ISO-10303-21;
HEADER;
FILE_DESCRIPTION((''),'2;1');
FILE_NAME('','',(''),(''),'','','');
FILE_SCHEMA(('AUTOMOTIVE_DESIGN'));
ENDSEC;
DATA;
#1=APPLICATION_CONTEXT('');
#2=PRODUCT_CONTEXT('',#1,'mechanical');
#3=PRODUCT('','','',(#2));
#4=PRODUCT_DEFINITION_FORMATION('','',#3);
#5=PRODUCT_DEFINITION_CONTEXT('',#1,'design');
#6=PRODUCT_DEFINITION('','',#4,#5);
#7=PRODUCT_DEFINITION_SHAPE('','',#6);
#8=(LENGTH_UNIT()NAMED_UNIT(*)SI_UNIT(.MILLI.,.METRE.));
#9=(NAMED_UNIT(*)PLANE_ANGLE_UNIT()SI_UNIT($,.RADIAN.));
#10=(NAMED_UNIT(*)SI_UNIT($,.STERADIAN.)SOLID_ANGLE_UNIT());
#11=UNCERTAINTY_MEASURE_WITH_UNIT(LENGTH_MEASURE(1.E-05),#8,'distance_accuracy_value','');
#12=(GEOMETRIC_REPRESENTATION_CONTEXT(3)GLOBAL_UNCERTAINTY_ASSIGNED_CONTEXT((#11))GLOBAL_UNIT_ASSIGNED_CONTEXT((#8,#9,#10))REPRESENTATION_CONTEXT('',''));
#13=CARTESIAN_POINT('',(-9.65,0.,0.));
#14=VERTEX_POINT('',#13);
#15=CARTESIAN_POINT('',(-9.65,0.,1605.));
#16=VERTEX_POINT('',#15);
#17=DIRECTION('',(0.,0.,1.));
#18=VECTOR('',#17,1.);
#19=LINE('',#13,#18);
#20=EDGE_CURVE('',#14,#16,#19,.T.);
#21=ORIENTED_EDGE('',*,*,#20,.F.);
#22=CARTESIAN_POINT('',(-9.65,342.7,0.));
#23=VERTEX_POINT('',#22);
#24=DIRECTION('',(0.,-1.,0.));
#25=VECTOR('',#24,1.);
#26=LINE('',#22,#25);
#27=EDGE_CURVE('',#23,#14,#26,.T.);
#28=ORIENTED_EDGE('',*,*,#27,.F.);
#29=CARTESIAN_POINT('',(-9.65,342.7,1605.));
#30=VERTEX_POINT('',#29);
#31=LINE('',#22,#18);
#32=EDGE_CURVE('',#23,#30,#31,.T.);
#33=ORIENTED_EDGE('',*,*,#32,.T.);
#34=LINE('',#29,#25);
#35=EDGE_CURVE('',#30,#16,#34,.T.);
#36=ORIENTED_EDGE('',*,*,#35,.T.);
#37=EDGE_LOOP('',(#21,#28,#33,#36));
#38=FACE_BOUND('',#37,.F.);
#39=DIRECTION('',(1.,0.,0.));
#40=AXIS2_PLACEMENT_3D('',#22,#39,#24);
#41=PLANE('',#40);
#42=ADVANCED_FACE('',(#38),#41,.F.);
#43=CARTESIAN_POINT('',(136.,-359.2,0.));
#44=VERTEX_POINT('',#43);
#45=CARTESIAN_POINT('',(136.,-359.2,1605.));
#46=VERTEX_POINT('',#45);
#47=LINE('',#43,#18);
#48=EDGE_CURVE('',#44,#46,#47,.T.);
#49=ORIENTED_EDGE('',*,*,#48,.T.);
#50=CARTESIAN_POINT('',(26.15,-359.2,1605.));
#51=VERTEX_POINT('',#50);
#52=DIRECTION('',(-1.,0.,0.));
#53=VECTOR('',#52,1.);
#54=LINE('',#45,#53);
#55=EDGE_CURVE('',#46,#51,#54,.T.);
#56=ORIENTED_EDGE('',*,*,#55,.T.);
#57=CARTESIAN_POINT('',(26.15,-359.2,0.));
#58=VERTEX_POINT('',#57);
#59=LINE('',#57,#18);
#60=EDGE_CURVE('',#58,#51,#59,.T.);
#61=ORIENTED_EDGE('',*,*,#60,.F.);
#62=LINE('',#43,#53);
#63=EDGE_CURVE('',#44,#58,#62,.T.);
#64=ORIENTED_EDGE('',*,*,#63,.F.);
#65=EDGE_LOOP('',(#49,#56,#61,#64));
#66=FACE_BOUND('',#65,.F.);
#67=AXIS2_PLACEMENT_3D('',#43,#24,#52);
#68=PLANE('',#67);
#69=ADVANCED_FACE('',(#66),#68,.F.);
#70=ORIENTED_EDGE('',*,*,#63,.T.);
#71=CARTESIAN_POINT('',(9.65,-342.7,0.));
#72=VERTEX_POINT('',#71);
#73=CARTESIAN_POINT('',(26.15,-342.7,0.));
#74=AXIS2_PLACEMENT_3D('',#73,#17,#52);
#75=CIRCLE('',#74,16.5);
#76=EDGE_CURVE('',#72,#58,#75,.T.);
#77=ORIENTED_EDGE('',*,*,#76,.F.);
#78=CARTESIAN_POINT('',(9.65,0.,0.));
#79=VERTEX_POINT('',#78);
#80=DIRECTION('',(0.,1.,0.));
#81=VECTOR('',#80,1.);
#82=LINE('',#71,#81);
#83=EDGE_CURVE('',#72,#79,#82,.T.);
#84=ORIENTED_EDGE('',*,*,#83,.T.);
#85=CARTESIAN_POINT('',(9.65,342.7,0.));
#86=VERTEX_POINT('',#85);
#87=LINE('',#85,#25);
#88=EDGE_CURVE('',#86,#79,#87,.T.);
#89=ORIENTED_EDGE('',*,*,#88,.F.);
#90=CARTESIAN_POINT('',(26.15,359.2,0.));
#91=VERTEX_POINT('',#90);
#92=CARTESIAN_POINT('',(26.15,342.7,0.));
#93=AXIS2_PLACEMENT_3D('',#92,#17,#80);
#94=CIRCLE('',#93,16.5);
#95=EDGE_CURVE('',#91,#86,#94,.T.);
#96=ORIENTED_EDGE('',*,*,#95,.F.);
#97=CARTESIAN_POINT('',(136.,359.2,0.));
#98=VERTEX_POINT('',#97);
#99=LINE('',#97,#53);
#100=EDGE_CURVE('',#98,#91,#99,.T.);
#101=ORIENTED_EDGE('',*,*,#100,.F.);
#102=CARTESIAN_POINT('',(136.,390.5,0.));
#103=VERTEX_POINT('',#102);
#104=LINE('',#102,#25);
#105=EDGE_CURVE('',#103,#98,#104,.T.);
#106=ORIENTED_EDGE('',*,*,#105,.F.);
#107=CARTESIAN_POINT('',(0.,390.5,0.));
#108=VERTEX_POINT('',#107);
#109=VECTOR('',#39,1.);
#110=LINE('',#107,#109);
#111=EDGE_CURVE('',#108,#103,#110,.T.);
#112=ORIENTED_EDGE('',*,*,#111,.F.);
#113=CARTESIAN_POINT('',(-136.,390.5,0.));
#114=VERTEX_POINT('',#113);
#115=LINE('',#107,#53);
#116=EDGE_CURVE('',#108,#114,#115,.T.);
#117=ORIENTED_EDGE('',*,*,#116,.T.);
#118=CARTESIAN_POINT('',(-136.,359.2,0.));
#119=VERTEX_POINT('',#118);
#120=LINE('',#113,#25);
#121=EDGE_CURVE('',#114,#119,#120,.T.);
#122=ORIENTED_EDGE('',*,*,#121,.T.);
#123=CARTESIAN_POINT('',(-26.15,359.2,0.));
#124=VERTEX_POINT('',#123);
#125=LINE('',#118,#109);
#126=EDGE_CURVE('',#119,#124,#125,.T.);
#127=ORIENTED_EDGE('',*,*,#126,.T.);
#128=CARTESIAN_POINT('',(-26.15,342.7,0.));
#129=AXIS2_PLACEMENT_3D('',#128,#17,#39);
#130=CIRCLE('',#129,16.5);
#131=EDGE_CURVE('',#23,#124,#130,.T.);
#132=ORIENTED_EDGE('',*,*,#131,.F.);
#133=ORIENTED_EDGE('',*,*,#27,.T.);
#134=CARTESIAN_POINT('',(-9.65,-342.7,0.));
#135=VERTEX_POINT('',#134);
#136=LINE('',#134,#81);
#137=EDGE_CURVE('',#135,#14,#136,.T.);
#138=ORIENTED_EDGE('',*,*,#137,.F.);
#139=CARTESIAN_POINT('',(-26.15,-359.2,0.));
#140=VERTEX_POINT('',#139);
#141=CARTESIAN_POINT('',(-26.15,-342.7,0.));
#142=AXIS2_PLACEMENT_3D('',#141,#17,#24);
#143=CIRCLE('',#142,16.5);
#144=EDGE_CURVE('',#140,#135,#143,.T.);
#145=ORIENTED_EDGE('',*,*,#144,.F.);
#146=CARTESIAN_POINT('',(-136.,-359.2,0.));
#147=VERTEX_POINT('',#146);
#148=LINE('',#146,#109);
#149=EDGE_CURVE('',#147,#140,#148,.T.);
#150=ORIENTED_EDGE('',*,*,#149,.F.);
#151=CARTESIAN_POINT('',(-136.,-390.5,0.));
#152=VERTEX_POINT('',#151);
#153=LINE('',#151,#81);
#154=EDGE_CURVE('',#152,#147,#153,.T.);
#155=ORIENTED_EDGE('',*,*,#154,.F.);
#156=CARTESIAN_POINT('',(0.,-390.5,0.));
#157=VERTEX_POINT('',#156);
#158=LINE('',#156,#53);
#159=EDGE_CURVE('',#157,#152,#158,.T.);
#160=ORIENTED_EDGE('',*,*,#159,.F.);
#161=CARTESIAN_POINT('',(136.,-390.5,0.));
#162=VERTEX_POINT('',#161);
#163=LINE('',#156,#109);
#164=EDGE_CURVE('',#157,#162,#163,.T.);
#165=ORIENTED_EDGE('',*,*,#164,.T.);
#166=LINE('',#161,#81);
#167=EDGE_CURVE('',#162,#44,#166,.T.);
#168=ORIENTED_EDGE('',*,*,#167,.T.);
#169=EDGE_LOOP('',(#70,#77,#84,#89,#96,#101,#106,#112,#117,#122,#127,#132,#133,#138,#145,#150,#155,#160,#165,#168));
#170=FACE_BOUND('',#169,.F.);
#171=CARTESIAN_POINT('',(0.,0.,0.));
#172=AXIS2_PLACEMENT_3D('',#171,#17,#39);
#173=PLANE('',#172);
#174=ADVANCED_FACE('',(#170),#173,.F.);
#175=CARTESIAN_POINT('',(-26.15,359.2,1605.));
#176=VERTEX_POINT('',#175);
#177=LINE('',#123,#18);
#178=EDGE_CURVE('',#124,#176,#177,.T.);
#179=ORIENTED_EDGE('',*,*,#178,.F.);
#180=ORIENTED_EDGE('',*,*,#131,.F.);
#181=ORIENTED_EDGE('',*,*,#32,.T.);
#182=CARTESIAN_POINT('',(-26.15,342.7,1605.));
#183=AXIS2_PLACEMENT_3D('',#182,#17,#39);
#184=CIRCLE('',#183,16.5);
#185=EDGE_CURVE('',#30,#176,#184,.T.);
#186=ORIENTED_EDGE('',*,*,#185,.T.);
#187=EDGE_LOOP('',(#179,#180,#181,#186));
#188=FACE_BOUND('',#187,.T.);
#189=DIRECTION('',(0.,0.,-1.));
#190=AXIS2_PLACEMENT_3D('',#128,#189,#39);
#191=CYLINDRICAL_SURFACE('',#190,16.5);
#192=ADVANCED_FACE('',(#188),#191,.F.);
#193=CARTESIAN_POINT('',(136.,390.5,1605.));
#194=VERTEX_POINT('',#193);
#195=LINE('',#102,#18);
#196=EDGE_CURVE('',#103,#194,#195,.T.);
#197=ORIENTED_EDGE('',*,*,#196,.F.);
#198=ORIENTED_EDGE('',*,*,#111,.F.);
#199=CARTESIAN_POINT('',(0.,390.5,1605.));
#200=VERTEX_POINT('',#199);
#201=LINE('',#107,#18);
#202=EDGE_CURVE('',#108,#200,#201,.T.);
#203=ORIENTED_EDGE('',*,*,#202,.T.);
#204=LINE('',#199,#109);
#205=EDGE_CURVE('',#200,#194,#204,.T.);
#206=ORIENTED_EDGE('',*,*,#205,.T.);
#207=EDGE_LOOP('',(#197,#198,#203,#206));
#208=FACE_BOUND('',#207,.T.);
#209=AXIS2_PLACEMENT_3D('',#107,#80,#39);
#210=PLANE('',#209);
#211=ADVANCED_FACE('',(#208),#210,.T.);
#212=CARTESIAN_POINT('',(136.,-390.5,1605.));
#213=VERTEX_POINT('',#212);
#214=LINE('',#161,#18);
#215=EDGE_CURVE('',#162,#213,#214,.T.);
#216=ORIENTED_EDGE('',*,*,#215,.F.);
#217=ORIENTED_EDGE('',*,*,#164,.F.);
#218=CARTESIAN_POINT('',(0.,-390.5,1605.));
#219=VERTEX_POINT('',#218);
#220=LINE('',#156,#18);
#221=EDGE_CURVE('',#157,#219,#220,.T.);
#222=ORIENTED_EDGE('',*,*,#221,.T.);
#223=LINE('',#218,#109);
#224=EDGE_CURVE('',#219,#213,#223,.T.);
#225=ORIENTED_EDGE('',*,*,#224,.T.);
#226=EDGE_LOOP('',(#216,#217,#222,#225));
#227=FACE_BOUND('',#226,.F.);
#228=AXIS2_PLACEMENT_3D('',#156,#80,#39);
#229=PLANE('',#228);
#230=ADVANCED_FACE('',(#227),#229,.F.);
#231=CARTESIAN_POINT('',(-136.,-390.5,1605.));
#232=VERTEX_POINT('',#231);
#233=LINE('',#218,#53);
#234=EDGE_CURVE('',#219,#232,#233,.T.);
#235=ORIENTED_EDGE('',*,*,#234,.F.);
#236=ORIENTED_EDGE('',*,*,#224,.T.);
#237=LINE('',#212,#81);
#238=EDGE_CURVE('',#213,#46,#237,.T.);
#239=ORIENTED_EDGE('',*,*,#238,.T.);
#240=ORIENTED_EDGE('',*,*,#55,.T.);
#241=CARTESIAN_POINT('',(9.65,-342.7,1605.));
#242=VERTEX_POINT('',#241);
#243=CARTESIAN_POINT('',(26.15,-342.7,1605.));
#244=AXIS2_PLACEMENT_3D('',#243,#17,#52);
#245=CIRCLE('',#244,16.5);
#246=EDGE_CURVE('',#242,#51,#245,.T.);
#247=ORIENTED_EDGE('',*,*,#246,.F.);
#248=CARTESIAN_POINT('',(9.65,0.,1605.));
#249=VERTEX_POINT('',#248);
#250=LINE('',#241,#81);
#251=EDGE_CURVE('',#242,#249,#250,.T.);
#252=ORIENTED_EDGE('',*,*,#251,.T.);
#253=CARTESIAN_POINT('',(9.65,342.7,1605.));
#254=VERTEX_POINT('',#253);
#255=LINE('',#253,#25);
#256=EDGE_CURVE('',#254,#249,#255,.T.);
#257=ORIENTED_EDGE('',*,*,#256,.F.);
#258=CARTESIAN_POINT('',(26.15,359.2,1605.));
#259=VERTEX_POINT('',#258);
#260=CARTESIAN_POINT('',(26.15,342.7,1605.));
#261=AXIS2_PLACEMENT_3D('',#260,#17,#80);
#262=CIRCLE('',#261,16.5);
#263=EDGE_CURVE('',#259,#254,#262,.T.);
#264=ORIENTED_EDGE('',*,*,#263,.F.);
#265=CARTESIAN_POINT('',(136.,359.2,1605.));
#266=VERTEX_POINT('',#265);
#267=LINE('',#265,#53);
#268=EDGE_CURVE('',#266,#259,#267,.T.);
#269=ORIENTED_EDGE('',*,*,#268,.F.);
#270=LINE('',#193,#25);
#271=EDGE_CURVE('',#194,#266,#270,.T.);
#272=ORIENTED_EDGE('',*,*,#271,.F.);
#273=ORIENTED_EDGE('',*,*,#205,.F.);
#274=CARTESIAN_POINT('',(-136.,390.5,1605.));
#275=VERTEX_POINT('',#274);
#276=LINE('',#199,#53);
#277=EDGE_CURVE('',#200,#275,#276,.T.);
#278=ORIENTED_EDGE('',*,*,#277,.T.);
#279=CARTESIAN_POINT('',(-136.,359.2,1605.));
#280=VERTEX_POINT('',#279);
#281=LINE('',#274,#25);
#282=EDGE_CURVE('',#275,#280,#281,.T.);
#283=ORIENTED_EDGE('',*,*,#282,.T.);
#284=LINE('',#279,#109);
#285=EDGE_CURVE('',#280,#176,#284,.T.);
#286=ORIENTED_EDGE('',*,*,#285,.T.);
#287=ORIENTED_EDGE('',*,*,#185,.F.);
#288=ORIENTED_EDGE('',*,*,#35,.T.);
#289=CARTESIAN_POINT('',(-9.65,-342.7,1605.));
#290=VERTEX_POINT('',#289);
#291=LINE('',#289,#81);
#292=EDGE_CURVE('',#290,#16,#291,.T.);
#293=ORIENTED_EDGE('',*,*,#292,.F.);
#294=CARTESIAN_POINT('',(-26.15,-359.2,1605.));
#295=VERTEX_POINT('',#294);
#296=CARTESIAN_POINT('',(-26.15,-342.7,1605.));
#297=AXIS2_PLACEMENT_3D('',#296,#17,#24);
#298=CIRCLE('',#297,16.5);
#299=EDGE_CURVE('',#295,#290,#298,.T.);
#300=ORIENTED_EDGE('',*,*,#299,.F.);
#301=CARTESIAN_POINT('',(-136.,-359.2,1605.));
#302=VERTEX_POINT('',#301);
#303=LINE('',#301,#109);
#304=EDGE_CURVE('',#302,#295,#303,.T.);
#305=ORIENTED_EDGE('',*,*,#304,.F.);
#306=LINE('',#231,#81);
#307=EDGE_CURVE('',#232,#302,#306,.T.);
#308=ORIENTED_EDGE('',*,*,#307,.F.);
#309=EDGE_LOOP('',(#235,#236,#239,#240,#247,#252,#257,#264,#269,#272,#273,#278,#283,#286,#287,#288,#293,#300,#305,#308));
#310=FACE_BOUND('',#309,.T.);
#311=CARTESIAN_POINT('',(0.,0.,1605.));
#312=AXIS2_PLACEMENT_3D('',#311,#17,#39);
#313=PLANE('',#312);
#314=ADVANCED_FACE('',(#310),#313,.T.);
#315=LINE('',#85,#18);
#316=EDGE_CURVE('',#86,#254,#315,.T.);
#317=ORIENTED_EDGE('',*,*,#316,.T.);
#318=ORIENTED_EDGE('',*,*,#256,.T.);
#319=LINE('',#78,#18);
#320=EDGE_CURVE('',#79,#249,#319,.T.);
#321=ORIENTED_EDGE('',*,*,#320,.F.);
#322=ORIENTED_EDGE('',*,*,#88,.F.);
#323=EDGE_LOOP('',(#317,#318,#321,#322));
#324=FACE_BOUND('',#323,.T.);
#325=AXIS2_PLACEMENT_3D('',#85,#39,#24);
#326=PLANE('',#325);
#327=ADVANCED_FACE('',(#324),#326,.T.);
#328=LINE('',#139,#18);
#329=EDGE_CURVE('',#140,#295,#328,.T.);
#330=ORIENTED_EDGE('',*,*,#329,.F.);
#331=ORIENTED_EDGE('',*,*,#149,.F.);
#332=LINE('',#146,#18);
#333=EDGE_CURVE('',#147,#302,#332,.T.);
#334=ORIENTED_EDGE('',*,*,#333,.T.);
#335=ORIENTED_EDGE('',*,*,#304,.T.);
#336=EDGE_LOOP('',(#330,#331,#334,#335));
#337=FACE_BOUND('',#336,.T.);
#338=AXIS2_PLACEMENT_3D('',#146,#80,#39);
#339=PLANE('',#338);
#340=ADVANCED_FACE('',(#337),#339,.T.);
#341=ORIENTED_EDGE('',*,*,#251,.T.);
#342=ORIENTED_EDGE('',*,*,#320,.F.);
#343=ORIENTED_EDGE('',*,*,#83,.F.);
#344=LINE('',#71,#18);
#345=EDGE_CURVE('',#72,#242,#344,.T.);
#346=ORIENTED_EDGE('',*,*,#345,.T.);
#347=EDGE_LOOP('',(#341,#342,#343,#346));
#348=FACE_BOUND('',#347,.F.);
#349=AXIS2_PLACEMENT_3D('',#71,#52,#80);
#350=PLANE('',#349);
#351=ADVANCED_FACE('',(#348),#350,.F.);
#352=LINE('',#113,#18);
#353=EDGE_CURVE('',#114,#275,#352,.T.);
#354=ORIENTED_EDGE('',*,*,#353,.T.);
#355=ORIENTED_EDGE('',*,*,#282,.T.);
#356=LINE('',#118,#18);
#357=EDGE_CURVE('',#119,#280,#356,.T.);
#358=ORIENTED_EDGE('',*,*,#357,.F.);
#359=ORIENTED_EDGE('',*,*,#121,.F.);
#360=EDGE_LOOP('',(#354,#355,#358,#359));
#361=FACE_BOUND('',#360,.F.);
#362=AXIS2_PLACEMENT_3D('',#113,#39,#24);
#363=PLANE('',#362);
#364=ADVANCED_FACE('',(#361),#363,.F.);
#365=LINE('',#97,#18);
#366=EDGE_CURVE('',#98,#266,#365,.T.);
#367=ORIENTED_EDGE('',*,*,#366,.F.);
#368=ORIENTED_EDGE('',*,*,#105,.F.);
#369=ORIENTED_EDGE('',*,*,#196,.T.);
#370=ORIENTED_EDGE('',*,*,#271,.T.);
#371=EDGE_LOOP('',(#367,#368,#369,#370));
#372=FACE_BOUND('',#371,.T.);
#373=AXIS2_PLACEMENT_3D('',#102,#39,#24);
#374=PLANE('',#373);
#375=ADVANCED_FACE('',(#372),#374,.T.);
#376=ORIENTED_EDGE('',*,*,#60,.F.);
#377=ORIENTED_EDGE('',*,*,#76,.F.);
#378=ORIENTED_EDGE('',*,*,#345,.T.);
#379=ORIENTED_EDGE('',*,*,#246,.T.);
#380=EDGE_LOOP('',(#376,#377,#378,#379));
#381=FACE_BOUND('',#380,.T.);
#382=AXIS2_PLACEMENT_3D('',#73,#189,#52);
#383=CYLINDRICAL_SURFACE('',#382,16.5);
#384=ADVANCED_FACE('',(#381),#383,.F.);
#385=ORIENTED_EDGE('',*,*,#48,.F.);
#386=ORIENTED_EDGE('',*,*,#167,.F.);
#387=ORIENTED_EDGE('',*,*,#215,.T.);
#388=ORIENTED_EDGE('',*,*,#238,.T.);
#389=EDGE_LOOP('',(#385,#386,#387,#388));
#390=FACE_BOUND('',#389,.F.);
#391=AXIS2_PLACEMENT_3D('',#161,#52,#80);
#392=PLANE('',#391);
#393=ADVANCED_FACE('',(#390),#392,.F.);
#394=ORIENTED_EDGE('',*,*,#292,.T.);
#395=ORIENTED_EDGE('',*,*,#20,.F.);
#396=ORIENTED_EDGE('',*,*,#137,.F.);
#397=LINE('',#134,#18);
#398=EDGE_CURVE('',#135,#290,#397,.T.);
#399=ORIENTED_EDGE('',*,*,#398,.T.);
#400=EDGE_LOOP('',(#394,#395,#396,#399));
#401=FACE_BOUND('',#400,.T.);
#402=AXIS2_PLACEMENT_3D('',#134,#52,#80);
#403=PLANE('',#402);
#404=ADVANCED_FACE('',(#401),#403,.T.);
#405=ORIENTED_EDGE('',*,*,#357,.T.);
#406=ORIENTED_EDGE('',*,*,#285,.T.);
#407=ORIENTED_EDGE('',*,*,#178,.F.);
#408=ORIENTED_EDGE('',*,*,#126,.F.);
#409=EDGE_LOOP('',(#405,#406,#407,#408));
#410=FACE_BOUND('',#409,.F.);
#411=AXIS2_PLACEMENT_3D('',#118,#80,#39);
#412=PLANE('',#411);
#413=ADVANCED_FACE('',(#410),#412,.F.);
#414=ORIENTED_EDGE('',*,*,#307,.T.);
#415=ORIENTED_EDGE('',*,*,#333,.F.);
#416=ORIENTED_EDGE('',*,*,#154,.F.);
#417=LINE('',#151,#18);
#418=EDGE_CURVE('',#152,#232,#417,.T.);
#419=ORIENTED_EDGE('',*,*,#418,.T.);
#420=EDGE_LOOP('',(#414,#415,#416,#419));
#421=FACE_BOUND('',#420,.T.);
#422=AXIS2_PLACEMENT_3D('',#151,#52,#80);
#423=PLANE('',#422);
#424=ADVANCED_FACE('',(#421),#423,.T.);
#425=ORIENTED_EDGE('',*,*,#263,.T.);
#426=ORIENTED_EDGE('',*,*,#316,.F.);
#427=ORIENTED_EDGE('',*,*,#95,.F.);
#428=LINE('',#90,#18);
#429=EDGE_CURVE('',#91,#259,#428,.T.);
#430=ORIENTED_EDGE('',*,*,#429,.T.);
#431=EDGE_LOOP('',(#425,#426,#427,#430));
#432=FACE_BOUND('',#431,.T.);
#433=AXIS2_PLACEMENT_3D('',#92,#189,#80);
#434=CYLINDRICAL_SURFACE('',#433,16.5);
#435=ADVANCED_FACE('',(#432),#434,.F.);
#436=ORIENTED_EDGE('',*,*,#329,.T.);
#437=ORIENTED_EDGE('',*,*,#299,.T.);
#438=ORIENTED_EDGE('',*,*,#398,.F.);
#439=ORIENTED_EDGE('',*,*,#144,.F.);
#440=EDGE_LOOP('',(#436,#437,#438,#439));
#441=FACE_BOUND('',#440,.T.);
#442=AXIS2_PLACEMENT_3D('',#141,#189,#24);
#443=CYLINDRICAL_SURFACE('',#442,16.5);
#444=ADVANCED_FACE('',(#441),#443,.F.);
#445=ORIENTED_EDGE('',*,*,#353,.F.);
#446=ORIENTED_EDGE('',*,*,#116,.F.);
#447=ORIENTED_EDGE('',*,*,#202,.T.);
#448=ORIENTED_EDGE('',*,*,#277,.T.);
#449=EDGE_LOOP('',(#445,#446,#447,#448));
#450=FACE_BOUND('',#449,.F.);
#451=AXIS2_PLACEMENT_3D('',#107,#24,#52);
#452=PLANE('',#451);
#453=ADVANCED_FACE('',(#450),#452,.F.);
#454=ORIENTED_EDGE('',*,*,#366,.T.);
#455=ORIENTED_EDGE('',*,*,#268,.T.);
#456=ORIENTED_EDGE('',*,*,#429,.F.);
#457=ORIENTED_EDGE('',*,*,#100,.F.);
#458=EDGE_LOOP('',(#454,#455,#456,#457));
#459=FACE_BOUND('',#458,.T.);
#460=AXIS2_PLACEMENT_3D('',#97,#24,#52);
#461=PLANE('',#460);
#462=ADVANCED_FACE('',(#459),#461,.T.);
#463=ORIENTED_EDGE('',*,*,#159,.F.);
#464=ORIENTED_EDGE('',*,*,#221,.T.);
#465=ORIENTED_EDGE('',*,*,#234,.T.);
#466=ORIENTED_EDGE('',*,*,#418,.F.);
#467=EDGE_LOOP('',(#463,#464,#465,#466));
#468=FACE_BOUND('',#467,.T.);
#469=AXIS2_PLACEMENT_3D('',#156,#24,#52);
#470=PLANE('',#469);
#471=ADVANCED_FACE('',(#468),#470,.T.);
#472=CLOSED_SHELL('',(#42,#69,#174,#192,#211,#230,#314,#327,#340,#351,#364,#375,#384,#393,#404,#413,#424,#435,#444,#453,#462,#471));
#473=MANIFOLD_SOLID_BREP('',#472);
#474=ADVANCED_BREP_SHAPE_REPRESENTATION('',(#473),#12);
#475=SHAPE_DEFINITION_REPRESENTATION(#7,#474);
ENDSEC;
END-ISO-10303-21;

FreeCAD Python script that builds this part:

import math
import FreeCAD as App
import Part
import Sketcher
from FreeCAD import Vector
Q = App.Units.Quantity

doc = App.newDocument("Part")
body = doc.addObject("PartDesign::Body", "Body")

sketch1 = doc.addObject("Sketcher::SketchObject", "Sketch")
body.addObject(sketch1)
sketch1.AttachmentSupport = (doc.XY_Plane, [""])
sketch1.MapMode = "FlatFace"
sketch1.addGeometry([
    Part.LineSegment(Vector(-136, -359, 0), Vector(-136, -390, 0)),
    Part.LineSegment(Vector(-136, -390, 0), Vector(136, -390, 0)),
    Part.LineSegment(Vector(136, -390, 0), Vector(136, -359, 0)),
    Part.LineSegment(Vector(136, -359, 0), Vector(26, -359, 0)),
    Part.ArcOfCircle(Part.Circle(Vector(26, -343, 0), Vector(0, 0, 1), 16), math.radians(180), math.radians(270)),
    Part.LineSegment(Vector(10, -343, 0), Vector(10, 343, 0)),
    Part.ArcOfCircle(Part.Circle(Vector(26, 343, 0), Vector(0, 0, 1), 16), math.radians(90), math.radians(180)),
    Part.LineSegment(Vector(26, 359, 0), Vector(136, 359, 0)),
    Part.LineSegment(Vector(136, 359, 0), Vector(136, 390, 0)),
    Part.LineSegment(Vector(136, 390, 0), Vector(-136, 390, 0)),
    Part.LineSegment(Vector(-136, 390, 0), Vector(-136, 359, 0)),
    Part.LineSegment(Vector(-136, 359, 0), Vector(-26, 359, 0)),
    Part.ArcOfCircle(Part.Circle(Vector(-26, 343, 0), Vector(0, 0, 1), 16), math.radians(0), math.radians(90)),
    Part.LineSegment(Vector(-10, 343, 0), Vector(-10, -343, 0)),
    Part.ArcOfCircle(Part.Circle(Vector(-26, -343, 0), Vector(0, 0, 1), 16), math.radians(-90), math.radians(0)),
    Part.LineSegment(Vector(-26, -359, 0), Vector(-136, -359, 0)),
], False)
sketch1.addConstraint([
    Sketcher.Constraint("Coincident", 0, 2, 1, 1),
    Sketcher.Constraint("Coincident", 1, 2, 2, 1),
    Sketcher.Constraint("Coincident", 2, 2, 3, 1),
    Sketcher.Constraint("Tangent", 3, 2, 4, 2),
    Sketcher.Constraint("Tangent", 4, 1, 5, 1),
    Sketcher.Constraint("Tangent", 5, 2, 6, 2),
    Sketcher.Constraint("Tangent", 6, 1, 7, 1),
    Sketcher.Constraint("Coincident", 7, 2, 8, 1),
    Sketcher.Constraint("Coincident", 8, 2, 9, 1),
    Sketcher.Constraint("Coincident", 9, 2, 10, 1),
    Sketcher.Constraint("Coincident", 10, 2, 11, 1),
    Sketcher.Constraint("Tangent", 11, 2, 12, 2),
    Sketcher.Constraint("Tangent", 12, 1, 13, 1),
    Sketcher.Constraint("Tangent", 13, 2, 14, 2),
    Sketcher.Constraint("Tangent", 14, 1, 15, 1),
    Sketcher.Constraint("Coincident", 15, 2, 0, 1),
    Sketcher.Constraint("Vertical", 0),
    Sketcher.Constraint("Horizontal", 1),
    Sketcher.Constraint("Vertical", 2),
    Sketcher.Constraint("Horizontal", 3),
    Sketcher.Constraint("Vertical", 5),
    Sketcher.Constraint("Horizontal", 7),
    Sketcher.Constraint("Vertical", 8),
    Sketcher.Constraint("Horizontal", 9),
    Sketcher.Constraint("Vertical", 10),
    Sketcher.Constraint("Horizontal", 11),
    Sketcher.Constraint("Vertical", 13),
    Sketcher.Constraint("Horizontal", 15),
    Sketcher.Constraint("Equal", 4, 6),
    Sketcher.Constraint("Equal", 6, 12),
    Sketcher.Constraint("Equal", 12, 14),
    Sketcher.Constraint("Symmetric", 4, 3, 12, 3, -1, 1),
    Sketcher.Constraint("Symmetric", 0, 2, 8, 2, -1, 1),
    Sketcher.Constraint("Symmetric", 7, 2, 10, 2, -2),
    Sketcher.Constraint("Symmetric", 2, 2, 15, 2, -2),
    Sketcher.Constraint("Radius", 4, Q("16.5 mm")),
    Sketcher.Constraint("DistanceY", 0, 2, 0, 1, Q("31.3 mm")),
    Sketcher.Constraint("DistanceX", 0, 2, -1, 1, Q("136 mm")),
    Sketcher.Constraint("DistanceY", 0, 2, -1, 1, Q("390.5 mm")),
    Sketcher.Constraint("DistanceX", -1, 1, 4, 1, Q("9.65 mm")),
])
pad1 = doc.addObject("PartDesign::Pad", "Pad")
body.addObject(pad1)
pad1.Profile = sketch1
pad1.Length = 1605

doc.recompute()
